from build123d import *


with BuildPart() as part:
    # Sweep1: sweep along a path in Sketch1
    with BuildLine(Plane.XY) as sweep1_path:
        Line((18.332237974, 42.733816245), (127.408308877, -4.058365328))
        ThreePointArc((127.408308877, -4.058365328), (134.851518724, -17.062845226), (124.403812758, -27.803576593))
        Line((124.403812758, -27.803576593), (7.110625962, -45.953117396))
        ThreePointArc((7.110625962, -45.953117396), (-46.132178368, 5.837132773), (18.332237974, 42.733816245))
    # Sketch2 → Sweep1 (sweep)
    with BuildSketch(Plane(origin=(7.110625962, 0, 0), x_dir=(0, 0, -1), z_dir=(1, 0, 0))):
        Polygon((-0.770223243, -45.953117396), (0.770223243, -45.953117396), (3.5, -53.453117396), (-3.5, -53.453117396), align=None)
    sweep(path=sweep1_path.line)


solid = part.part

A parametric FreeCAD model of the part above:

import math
import FreeCAD as App
import Part
import Sketcher

V = App.Vector
Q = App.Units.Quantity


def add_polygon(sketch, points):
    """Adds a closed chain of lines whose ends are joined by coincident constraints."""
    first, n = sketch.GeometryCount, len(points)
    for a, b in zip(points, points[1:] + points[:1]):
        sketch.addGeometry(Part.LineSegment(App.Vector(*a, 0), App.Vector(*b, 0)), False)
    for i in range(n):
        sketch.addConstraint(Sketcher.Constraint("Coincident", first + i, 2, first + (i + 1) % n, 1))

doc = App.newDocument("Part")
body = doc.addObject("PartDesign::Body", "Body")

sketch1 = doc.addObject("Sketcher::SketchObject", "Sketch")
body.addObject(sketch1)
sketch1.AttachmentSupport = (doc.YZ_Plane, [""])
sketch1.MapMode = "FlatFace"
sketch1.AttachmentOffset = App.Placement(V(0, 0, 7.110626), App.Rotation())
add_polygon(sketch1, [(-46, -0.8), (-46, 0.8), (-53.5, 3.5), (-53.5, -3.5)])
sketch1.addConstraint(Sketcher.Constraint("Vertical", 0))
sketch1.addConstraint(Sketcher.Constraint("Vertical", 2))
sketch1.addConstraint(Sketcher.Constraint("Equal", 1, 3))
sketch1.addConstraint(Sketcher.Constraint("DistanceY", 2, 2, 2, 1, Q("7 mm")))
sketch1.addConstraint(Sketcher.Constraint("Angle", 1, Q("160 deg")))
sketch1.addConstraint(Sketcher.Constraint("DistanceY", -1, 1, 1, 2, Q("3.5 mm")))
sketch1.addConstraint(Sketcher.Constraint("DistanceX", 1, 2, 0, 2, Q("7.5 mm")))
sketch1.addConstraint(Sketcher.Constraint("DistanceX", 0, 2, -1, 1, Q("45.953117 mm")))

sketch2 = doc.addObject("Sketcher::SketchObject", "Sketch001")
body.addObject(sketch2)
sketch2.AttachmentSupport = (doc.XY_Plane, [""])
sketch2.MapMode = "FlatFace"
sketch2.addGeometry(Part.LineSegment(V(18, 43, 0), V(127, -4, 0)), False)
sketch2.addGeometry(Part.ArcOfCircle(Part.Circle(V(122, -16, 0), V(0, 0, 1), 12), math.radians(-81), math.radians(67)), False)
sketch2.addGeometry(Part.LineSegment(V(124, -28, 0), V(7, -46, 0)), False)
sketch2.addGeometry(Part.ArcOfCircle(Part.Circle(V(0, 0, 0), V(0, 0, 1), 46), math.radians(67), math.radians(279)), False)
sketch2.addConstraint(Sketcher.Constraint("Tangent", 0, 2, 1, 2))
sketch2.addConstraint(Sketcher.Constraint("Tangent", 1, 1, 2, 1))
sketch2.addConstraint(Sketcher.Constraint("Tangent", 2, 2, 3, 2))
sketch2.addConstraint(Sketcher.Constraint("Tangent", 3, 1, 0, 1))
sketch2.addConstraint(Sketcher.Constraint("Coincident", 3, 3, -1, 1))
sketch2.addConstraint(Sketcher.Constraint("Radius", 3, Q("46.5 mm")))
sketch2.addConstraint(Sketcher.Constraint("Radius", 1, Q("12.45 mm")))
sketch2.addConstraint(Sketcher.Constraint("DistanceX", -1, 1, 1, 3, Q("122.5 mm")))
sketch2.addConstraint(Sketcher.Constraint("DistanceY", 1, 3, -1, 1, Q("15.5 mm")))
doc.recompute()

additivepipe = doc.addObject("PartDesign::AdditivePipe", "AdditivePipe")
body.addObject(additivepipe)
additivepipe.Profile = sketch1
additivepipe.Spine = (sketch2, ["Edge1", "Edge2", "Edge3", "Edge4"])

doc.recompute()
